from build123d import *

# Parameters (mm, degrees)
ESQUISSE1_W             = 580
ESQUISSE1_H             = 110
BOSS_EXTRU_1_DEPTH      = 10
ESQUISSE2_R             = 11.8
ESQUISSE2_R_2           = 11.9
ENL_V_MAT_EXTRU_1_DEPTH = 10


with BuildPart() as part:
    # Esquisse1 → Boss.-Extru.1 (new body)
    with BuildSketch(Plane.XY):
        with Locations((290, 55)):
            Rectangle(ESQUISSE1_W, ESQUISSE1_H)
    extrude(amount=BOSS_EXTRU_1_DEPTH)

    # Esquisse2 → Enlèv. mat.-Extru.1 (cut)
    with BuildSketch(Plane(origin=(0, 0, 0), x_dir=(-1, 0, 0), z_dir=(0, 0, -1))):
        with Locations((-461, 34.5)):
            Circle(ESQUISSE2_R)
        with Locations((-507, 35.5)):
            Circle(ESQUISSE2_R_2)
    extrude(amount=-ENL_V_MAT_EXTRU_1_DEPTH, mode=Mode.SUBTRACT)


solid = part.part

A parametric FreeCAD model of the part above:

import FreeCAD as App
import Part
import Sketcher

V = App.Vector
Q = App.Units.Quantity


def add_polygon(sketch, points):
    """Adds a closed chain of lines whose ends are joined by coincident constraints."""
    first, n = sketch.GeometryCount, len(points)
    for a, b in zip(points, points[1:] + points[:1]):
        sketch.addGeometry(Part.LineSegment(App.Vector(*a, 0), App.Vector(*b, 0)), False)
    for i in range(n):
        sketch.addConstraint(Sketcher.Constraint("Coincident", first + i, 2, first + (i + 1) % n, 1))

doc = App.newDocument("Part")
body = doc.addObject("PartDesign::Body", "Body")

# Sketch on XY plane
sketch1 = doc.addObject("Sketcher::SketchObject", "Sketch")
body.addObject(sketch1)
sketch1.AttachmentSupport = (doc.XY_Plane, [""])
sketch1.MapMode = "FlatFace"
add_polygon(sketch1, [(0, 110), (0, 0), (580, 0), (580, 110)])  # lines 0-3
sketch1.addConstraint(Sketcher.Constraint("Vertical", 0))
sketch1.addConstraint(Sketcher.Constraint("Horizontal", 1))
sketch1.addConstraint(Sketcher.Constraint("Vertical", 2))
sketch1.addConstraint(Sketcher.Constraint("Horizontal", 3))
sketch1.addConstraint(Sketcher.Constraint("Coincident", 0, 2, -1, 1))
sketch1.addConstraint(Sketcher.Constraint("DistanceX", 1, 1, 1, 2, Q("580 mm")))
sketch1.addConstraint(Sketcher.Constraint("DistanceY", 0, 2, 0, 1, Q("110 mm")))
pad1 = doc.addObject("PartDesign::Pad", "Pad")
body.addObject(pad1)
pad1.Profile = sketch1
pad1.Length = 10

# Sketch on XY plane
sketch2 = doc.addObject("Sketcher::SketchObject", "Sketch001")
body.addObject(sketch2)
sketch2.AttachmentSupport = (doc.XY_Plane, [""])
sketch2.MapMode = "FlatFace"
sketch2.addGeometry(Part.Circle(V(461, 34, 0), V(0, 0, 1), 12), False)
sketch2.addGeometry(Part.Circle(V(507, 36, 0), V(0, 0, 1), 12), False)
sketch2.addConstraint(Sketcher.Constraint("Diameter", 0, Q("23.6 mm")))
sketch2.addConstraint(Sketcher.Constraint("Diameter", 1, Q("23.8 mm")))
sketch2.addConstraint(Sketcher.Constraint("DistanceX", -1, 1, 0, 3, Q("461 mm")))
sketch2.addConstraint(Sketcher.Constraint("DistanceX", -1, 1, 1, 3, Q("507 mm")))
sketch2.addConstraint(Sketcher.Constraint("DistanceY", 0, 3, 1, 3, Q("1 mm")))
sketch2.addConstraint(Sketcher.Constraint("DistanceY", -1, 1, 0, 3, Q("34.5 mm")))
pocket1 = doc.addObject("PartDesign::Pocket", "Pocket")
body.addObject(pocket1)
pocket1.Profile = sketch2
pocket1.Length = 10
pocket1.Reversed = True

doc.recompute()
